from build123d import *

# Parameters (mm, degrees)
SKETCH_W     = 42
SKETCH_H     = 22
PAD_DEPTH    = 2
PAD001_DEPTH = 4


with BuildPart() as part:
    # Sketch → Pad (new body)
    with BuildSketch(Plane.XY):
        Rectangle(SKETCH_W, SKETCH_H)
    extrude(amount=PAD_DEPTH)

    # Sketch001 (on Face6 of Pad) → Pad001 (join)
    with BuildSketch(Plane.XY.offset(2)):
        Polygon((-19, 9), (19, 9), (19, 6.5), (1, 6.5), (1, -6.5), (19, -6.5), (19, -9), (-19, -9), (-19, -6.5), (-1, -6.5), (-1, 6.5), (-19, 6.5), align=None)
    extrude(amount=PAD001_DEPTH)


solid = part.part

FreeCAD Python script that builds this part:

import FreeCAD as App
import Part
import Sketcher
Q = App.Units.Quantity


def add_polygon(sketch, points):
    """Adds a closed chain of lines whose ends are joined by coincident constraints."""
    first, n = sketch.GeometryCount, len(points)
    for a, b in zip(points, points[1:] + points[:1]):
        sketch.addGeometry(Part.LineSegment(App.Vector(*a, 0), App.Vector(*b, 0)), False)
    for i in range(n):
        sketch.addConstraint(Sketcher.Constraint("Coincident", first + i, 2, first + (i + 1) % n, 1))

doc = App.newDocument("Part")
body = doc.addObject("PartDesign::Body", "Body")

sketch1 = body.newObject("Sketcher::SketchObject", "Sketch")
sketch1.AttachmentSupport = (doc.getObject("XY_Plane"), [""])
sketch1.MapMode = "FlatFace"
add_polygon(sketch1, [(-21, 11), (-21, -11), (21, -11), (21, 11)])
sketch1.addConstraint([
    Sketcher.Constraint("Vertical", 0),
    Sketcher.Constraint("Horizontal", 1),
    Sketcher.Constraint("Vertical", 2),
    Sketcher.Constraint("Horizontal", 3),
    Sketcher.Constraint("Symmetric", 0, 2, 2, 2, -1, 1),
    Sketcher.Constraint("DistanceX", 1, 1, 1, 2, Q("42 mm")),
    Sketcher.Constraint("DistanceY", 0, 2, 0, 1, Q("22 mm")),
])
pad1 = body.newObject("PartDesign::Pad", "Pad")
pad1.Profile = sketch1
pad1.Length = 2

sketch2 = body.newObject("Sketcher::SketchObject", "Sketch001")
sketch2.AttachmentSupport = (doc.getObject("XY_Plane"), [""])
sketch2.MapMode = "FlatFace"
sketch2.AttachmentOffset = App.Placement(App.Vector(0, 0, 2), App.Rotation())
add_polygon(sketch2, [(19, 9), (-19, 9), (-19, 6.5), (-1, 6.5), (-1, -6.5), (-19, -6.5), (-19, -9), (19, -9), (19, -6.5), (1, -6.5), (1, 6.5), (19, 6.5)])
sketch2.addConstraint([
    Sketcher.Constraint("Horizontal", 0),
    Sketcher.Constraint("Vertical", 1),
    Sketcher.Constraint("Horizontal", 2),
    Sketcher.Constraint("Vertical", 3),
    Sketcher.Constraint("Horizontal", 4),
    Sketcher.Constraint("Vertical", 5),
    Sketcher.Constraint("Horizontal", 6),
    Sketcher.Constraint("Vertical", 7),
    Sketcher.Constraint("Horizontal", 8),
    Sketcher.Constraint("Vertical", 9),
    Sketcher.Constraint("Horizontal", 10),
    Sketcher.Constraint("Vertical", 11),
    Sketcher.Constraint("Symmetric", 0, 2, 6, 2, -1, 1),
    Sketcher.Constraint("Symmetric", 2, 2, 8, 2, -1, 1),
    Sketcher.Constraint("Symmetric", 4, 2, 10, 2, -1, 1),
    Sketcher.Constraint("Symmetric", 4, 2, 7, 2, -2),
    Sketcher.Constraint("DistanceX", 0, 2, 0, 1, Q("38 mm")),
    Sketcher.Constraint("DistanceX", 2, 1, 2, 2, Q("18 mm")),
    Sketcher.Constraint("DistanceY", 3, 2, 3, 1, Q("13 mm")),
    Sketcher.Constraint("DistanceY", 1, 2, 1, 1, Q("2.5 mm")),
])
pad2 = body.newObject("PartDesign::Pad", "Pad001")
pad2.Profile = sketch2
pad2.Length = 4

doc.recompute()
